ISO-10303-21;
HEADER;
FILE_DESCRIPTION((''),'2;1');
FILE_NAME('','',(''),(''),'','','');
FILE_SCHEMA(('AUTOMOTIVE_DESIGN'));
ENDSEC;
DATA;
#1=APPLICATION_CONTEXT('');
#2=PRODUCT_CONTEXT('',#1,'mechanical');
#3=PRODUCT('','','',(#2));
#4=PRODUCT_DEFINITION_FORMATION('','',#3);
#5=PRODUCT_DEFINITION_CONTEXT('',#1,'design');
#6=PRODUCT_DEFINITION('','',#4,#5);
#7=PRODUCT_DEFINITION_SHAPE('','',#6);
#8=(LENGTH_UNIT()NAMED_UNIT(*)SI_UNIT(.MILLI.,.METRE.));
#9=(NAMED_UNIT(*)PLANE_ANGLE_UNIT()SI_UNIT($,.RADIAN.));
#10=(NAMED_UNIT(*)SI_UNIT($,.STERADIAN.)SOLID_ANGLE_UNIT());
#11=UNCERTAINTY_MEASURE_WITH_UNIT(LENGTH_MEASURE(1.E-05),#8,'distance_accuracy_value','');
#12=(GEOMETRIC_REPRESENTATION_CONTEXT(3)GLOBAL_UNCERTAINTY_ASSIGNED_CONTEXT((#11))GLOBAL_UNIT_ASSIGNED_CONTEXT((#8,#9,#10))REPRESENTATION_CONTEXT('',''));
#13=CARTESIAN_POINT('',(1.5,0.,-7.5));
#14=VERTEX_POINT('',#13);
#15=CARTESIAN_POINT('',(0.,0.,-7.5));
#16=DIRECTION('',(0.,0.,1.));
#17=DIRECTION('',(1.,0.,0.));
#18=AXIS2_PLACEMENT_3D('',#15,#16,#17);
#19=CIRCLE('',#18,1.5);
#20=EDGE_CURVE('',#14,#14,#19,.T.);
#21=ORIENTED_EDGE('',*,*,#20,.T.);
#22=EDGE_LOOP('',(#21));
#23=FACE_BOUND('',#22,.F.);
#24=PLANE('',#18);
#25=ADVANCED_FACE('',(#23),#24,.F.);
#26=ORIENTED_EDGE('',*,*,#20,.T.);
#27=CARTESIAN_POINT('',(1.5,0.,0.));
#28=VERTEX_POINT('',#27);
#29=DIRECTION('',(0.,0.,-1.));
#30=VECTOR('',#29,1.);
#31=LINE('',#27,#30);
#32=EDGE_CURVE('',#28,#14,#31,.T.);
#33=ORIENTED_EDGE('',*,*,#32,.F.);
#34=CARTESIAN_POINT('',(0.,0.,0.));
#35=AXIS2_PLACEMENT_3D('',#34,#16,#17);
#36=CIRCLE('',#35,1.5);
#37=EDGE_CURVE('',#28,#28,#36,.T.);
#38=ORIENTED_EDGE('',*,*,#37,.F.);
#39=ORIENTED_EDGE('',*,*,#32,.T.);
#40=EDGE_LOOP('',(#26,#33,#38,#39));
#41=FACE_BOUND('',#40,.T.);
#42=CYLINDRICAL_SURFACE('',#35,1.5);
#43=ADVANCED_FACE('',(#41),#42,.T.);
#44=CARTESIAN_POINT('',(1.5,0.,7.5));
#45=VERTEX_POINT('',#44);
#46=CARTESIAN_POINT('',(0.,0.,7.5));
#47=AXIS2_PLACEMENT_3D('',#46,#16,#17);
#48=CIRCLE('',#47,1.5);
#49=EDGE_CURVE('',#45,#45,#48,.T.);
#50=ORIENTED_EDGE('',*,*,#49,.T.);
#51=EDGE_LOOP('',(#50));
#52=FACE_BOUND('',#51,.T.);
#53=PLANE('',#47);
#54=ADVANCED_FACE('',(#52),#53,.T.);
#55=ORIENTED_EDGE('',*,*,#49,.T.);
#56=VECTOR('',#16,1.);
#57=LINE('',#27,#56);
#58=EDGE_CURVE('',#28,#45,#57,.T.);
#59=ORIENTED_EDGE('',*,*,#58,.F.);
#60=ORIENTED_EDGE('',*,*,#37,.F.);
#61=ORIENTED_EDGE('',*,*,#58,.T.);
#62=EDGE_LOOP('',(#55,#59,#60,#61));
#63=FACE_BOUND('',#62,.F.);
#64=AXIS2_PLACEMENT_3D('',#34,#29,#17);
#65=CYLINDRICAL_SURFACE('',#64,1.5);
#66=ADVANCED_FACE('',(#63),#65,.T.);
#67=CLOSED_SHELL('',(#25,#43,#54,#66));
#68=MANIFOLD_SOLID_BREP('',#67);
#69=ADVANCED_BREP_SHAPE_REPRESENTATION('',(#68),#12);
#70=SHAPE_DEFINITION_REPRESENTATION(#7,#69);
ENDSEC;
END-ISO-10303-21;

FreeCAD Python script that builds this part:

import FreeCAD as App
import Part
import Sketcher

V = App.Vector
Q = App.Units.Quantity

doc = App.newDocument("Part")
body = doc.addObject("PartDesign::Body", "Body")

# Sketch on XY plane
sketch1 = doc.addObject("Sketcher::SketchObject", "Sketch")
body.addObject(sketch1)
sketch1.AttachmentSupport = (doc.XY_Plane, [""])
sketch1.MapMode = "FlatFace"
sketch1.addGeometry(Part.Circle(V(0, 0, 0), V(0, 0, 1), 1.5), False)
sketch1.addConstraint([
    Sketcher.Constraint("Coincident", 0, 3, -1, 1),
    Sketcher.Constraint("Diameter", 0, Q("3 mm")),
])
pad1 = doc.addObject("PartDesign::Pad", "Pad")
body.addObject(pad1)
pad1.Profile = sketch1
pad1.Length = 15
pad1.Midplane = True

doc.recompute()
